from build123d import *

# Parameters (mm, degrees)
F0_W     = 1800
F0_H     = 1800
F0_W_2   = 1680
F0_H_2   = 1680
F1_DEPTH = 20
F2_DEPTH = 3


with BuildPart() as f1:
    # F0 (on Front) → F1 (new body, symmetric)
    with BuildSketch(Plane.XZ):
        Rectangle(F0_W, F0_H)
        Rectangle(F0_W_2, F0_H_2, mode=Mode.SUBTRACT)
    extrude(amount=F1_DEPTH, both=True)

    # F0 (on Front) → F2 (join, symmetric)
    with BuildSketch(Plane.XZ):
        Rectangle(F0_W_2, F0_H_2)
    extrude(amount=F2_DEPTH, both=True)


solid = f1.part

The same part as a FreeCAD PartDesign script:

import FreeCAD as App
import Part
import Sketcher

doc = App.newDocument("Part")
body = doc.addObject("PartDesign::Body", "Body")

sketch1 = doc.addObject("Sketcher::SketchObject", "Sketch")
body.addObject(sketch1)
sketch1.AttachmentSupport = (doc.XZ_Plane, [""])
sketch1.MapMode = "FlatFace"
sketch1.addGeometry([
    Part.LineSegment(App.Vector(-900, 900, 0), App.Vector(-900, -900, 0)),
    Part.LineSegment(App.Vector(-900, -900, 0), App.Vector(900, -900, 0)),
    Part.LineSegment(App.Vector(900, -900, 0), App.Vector(900, 900, 0)),
    Part.LineSegment(App.Vector(900, 900, 0), App.Vector(-900, 900, 0)),
    Part.LineSegment(App.Vector(840, -840, 0), App.Vector(-840, -840, 0)),
    Part.LineSegment(App.Vector(-840, -840, 0), App.Vector(-840, 840, 0)),
    Part.LineSegment(App.Vector(-840, 840, 0), App.Vector(840, 840, 0)),
    Part.LineSegment(App.Vector(840, 840, 0), App.Vector(840, -840, 0)),
], False)
sketch1.addConstraint([
    Sketcher.Constraint("Coincident", 0, 2, 1, 1),
    Sketcher.Constraint("Coincident", 1, 2, 2, 1),
    Sketcher.Constraint("Coincident", 2, 2, 3, 1),
    Sketcher.Constraint("Coincident", 3, 2, 0, 1),
    Sketcher.Constraint("Coincident", 4, 2, 5, 1),
    Sketcher.Constraint("Coincident", 5, 2, 6, 1),
    Sketcher.Constraint("Coincident", 6, 2, 7, 1),
    Sketcher.Constraint("Coincident", 7, 2, 4, 1),
    Sketcher.Constraint("Vertical", 0),
    Sketcher.Constraint("Horizontal", 1),
    Sketcher.Constraint("Vertical", 2),
    Sketcher.Constraint("Horizontal", 3),
    Sketcher.Constraint("Horizontal", 4),
    Sketcher.Constraint("Vertical", 5),
    Sketcher.Constraint("Horizontal", 6),
    Sketcher.Constraint("Vertical", 7),
    Sketcher.Constraint("Symmetric", 0, 2, 2, 2, -1, 1),
    Sketcher.Constraint("Symmetric", 4, 2, 6, 2, -1, 1),
    Sketcher.Constraint("Equal", 3, 0),
    Sketcher.Constraint("Equal", 6, 5),
    Sketcher.Constraint("DistanceX", 1, 1, 1, 2, 1800.0),
    Sketcher.Constraint("DistanceX", 4, 2, 4, 1, 1680.0),
])
pad1 = doc.addObject("PartDesign::Pad", "Pad")
body.addObject(pad1)
pad1.Profile = sketch1
pad1.Length = 40
pad1.Midplane = True

sketch2 = doc.addObject("Sketcher::SketchObject", "Sketch001")
body.addObject(sketch2)
sketch2.AttachmentSupport = (doc.XZ_Plane, [""])
sketch2.MapMode = "FlatFace"
sketch2.addGeometry([
    Part.LineSegment(App.Vector(-840, 840, 0), App.Vector(-840, -840, 0)),
    Part.LineSegment(App.Vector(-840, -840, 0), App.Vector(840, -840, 0)),
    Part.LineSegment(App.Vector(840, -840, 0), App.Vector(840, 840, 0)),
    Part.LineSegment(App.Vector(840, 840, 0), App.Vector(-840, 840, 0)),
], False)
sketch2.addConstraint([
    Sketcher.Constraint("Coincident", 0, 2, 1, 1),
    Sketcher.Constraint("Coincident", 1, 2, 2, 1),
    Sketcher.Constraint("Coincident", 2, 2, 3, 1),
    Sketcher.Constraint("Coincident", 3, 2, 0, 1),
    Sketcher.Constraint("Vertical", 0),
    Sketcher.Constraint("Horizontal", 1),
    Sketcher.Constraint("Vertical", 2),
    Sketcher.Constraint("Horizontal", 3),
    Sketcher.Constraint("Symmetric", 0, 2, 2, 2, -1, 1),
    Sketcher.Constraint("Equal", 3, 0),
    Sketcher.Constraint("DistanceX", 1, 1, 1, 2, 1680.0),
])
pad2 = doc.addObject("PartDesign::Pad", "Pad001")
body.addObject(pad2)
pad2.Profile = sketch2
pad2.Length = 6
pad2.Midplane = True

doc.recompute()
